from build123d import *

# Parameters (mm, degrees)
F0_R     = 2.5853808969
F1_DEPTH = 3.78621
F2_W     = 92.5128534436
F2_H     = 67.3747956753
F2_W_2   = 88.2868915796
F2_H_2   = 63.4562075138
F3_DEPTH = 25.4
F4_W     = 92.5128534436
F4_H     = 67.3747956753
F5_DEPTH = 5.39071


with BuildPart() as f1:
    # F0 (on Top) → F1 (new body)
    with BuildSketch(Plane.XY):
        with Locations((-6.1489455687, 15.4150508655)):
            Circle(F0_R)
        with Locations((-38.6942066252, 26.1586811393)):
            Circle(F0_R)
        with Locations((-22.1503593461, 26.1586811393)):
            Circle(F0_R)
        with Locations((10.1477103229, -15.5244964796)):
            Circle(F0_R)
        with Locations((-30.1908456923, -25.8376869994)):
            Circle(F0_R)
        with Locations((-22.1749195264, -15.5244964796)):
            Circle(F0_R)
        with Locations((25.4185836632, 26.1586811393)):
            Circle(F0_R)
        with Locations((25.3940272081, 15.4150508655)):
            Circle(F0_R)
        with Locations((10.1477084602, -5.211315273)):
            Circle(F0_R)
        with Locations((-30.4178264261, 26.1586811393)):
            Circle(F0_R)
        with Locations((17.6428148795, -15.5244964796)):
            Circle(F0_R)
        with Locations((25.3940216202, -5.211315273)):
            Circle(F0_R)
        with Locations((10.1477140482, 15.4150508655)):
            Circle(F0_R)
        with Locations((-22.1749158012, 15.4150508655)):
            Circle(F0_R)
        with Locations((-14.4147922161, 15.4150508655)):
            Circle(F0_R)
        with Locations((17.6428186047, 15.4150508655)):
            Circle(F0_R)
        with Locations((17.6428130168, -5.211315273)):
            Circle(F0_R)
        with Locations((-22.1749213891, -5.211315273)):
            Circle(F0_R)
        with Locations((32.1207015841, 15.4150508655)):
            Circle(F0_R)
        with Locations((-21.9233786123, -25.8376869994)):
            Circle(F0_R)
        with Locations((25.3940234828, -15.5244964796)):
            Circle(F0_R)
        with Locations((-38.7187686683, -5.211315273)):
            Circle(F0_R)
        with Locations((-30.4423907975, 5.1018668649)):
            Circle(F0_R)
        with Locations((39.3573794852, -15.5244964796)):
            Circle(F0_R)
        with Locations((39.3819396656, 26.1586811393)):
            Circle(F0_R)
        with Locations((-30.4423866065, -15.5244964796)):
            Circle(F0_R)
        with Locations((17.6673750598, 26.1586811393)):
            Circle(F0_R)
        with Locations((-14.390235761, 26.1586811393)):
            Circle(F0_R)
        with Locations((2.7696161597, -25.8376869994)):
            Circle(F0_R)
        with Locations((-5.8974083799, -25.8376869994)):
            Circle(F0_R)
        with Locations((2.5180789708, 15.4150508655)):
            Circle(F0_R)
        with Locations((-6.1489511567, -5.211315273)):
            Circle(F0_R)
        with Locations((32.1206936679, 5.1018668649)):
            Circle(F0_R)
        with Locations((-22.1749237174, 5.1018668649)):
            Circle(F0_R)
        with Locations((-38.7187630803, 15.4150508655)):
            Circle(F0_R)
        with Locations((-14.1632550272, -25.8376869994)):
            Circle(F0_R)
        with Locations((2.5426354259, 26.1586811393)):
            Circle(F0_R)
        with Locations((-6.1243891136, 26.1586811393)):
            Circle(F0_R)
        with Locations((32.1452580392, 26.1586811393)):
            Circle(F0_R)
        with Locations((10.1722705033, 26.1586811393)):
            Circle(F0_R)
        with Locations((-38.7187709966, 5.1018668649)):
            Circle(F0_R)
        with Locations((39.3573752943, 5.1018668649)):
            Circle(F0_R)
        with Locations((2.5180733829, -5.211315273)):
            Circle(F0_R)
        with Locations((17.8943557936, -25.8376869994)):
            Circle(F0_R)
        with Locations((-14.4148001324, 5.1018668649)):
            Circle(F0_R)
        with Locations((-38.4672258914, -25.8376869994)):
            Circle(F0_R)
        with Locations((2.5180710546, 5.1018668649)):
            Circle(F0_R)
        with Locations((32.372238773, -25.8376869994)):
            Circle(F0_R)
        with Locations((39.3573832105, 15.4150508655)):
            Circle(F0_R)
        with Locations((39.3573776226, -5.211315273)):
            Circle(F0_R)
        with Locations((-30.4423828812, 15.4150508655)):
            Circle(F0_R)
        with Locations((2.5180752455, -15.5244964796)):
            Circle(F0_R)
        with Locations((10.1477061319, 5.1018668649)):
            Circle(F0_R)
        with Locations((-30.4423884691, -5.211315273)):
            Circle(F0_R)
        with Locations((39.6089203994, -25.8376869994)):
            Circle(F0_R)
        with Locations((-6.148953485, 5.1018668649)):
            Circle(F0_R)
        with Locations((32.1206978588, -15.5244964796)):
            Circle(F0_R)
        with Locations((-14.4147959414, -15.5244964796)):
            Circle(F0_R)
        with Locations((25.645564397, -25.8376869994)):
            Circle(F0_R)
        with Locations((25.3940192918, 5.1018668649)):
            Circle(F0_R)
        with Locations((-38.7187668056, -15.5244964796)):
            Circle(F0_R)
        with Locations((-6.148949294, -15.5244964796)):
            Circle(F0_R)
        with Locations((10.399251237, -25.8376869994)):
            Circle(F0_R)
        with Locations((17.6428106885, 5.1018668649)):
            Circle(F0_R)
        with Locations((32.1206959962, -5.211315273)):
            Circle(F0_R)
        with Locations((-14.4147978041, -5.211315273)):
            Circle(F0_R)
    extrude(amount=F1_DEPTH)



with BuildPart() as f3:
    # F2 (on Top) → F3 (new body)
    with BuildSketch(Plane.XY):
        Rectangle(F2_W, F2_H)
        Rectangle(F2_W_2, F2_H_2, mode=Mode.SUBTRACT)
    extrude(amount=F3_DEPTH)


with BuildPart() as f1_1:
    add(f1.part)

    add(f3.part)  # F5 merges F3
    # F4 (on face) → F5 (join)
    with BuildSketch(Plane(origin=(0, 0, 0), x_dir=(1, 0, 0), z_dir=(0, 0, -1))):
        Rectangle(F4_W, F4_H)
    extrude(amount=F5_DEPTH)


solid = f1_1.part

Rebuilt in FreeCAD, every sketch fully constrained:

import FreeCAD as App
import Part
import Sketcher
from FreeCAD import Vector
Q = App.Units.Quantity

doc = App.newDocument("Part")
body = doc.addObject("PartDesign::Body", "Body")
body.AllowCompound = True

# Sketch on XY plane
sketch1 = body.newObject("Sketcher::SketchObject", "Sketch")
sketch1.AttachmentSupport = (doc.getObject("XY_Plane"), [""])
sketch1.MapMode = "FlatFace"
sketch1.addGeometry(Part.Circle(Vector(-6.1, 15.4, 0), Vector(0, 0, 1), 2.6), False)
sketch1.addGeometry(Part.Circle(Vector(-38.7, 26.2, 0), Vector(0, 0, 1), 2.6), False)
sketch1.addGeometry(Part.Circle(Vector(-22.2, 26.2, 0), Vector(0, 0, 1), 2.6), False)
sketch1.addGeometry(Part.Circle(Vector(10.1, -15.5, 0), Vector(0, 0, 1), 2.6), False)
sketch1.addGeometry(Part.Circle(Vector(-30.2, -25.8, 0), Vector(0, 0, 1), 2.6), False)
sketch1.addGeometry(Part.Circle(Vector(-22.2, -15.5, 0), Vector(0, 0, 1), 2.6), False)
sketch1.addGeometry(Part.Circle(Vector(25.4, 26.2, 0), Vector(0, 0, 1), 2.6), False)
sketch1.addGeometry(Part.Circle(Vector(25.4, 15.4, 0), Vector(0, 0, 1), 2.6), False)
sketch1.addGeometry(Part.Circle(Vector(10.1, -5.2, 0), Vector(0, 0, 1), 2.6), False)
sketch1.addGeometry(Part.Circle(Vector(-30.4, 26.2, 0), Vector(0, 0, 1), 2.6), False)
sketch1.addGeometry(Part.Circle(Vector(17.6, -15.5, 0), Vector(0, 0, 1), 2.6), False)
sketch1.addGeometry(Part.Circle(Vector(25.4, -5.2, 0), Vector(0, 0, 1), 2.6), False)
sketch1.addGeometry(Part.Circle(Vector(10.1, 15.4, 0), Vector(0, 0, 1), 2.6), False)
sketch1.addGeometry(Part.Circle(Vector(-22.2, 15.4, 0), Vector(0, 0, 1), 2.6), False)
sketch1.addGeometry(Part.Circle(Vector(-14.4, 15.4, 0), Vector(0, 0, 1), 2.6), False)
sketch1.addGeometry(Part.Circle(Vector(17.6, 15.4, 0), Vector(0, 0, 1), 2.6), False)
sketch1.addGeometry(Part.Circle(Vector(17.6, -5.2, 0), Vector(0, 0, 1), 2.6), False)
sketch1.addGeometry(Part.Circle(Vector(-22.2, -5.2, 0), Vector(0, 0, 1), 2.6), False)
sketch1.addGeometry(Part.Circle(Vector(32.1, 15.4, 0), Vector(0, 0, 1), 2.6), False)
sketch1.addGeometry(Part.Circle(Vector(-21.9, -25.8, 0), Vector(0, 0, 1), 2.6), False)
sketch1.addGeometry(Part.Circle(Vector(25.4, -15.5, 0), Vector(0, 0, 1), 2.6), False)
sketch1.addGeometry(Part.Circle(Vector(-38.7, -5.2, 0), Vector(0, 0, 1), 2.6), False)
sketch1.addGeometry(Part.Circle(Vector(-30.4, 5.1, 0), Vector(0, 0, 1), 2.6), False)
sketch1.addGeometry(Part.Circle(Vector(39.4, -15.5, 0), Vector(0, 0, 1), 2.6), False)
sketch1.addGeometry(Part.Circle(Vector(39.4, 26.2, 0), Vector(0, 0, 1), 2.6), False)
sketch1.addGeometry(Part.Circle(Vector(-30.4, -15.5, 0), Vector(0, 0, 1), 2.6), False)
sketch1.addGeometry(Part.Circle(Vector(17.7, 26.2, 0), Vector(0, 0, 1), 2.6), False)
sketch1.addGeometry(Part.Circle(Vector(-14.4, 26.2, 0), Vector(0, 0, 1), 2.6), False)
sketch1.addGeometry(Part.Circle(Vector(2.8, -25.8, 0), Vector(0, 0, 1), 2.6), False)
sketch1.addGeometry(Part.Circle(Vector(-5.9, -25.8, 0), Vector(0, 0, 1), 2.6), False)
sketch1.addGeometry(Part.Circle(Vector(2.5, 15.4, 0), Vector(0, 0, 1), 2.6), False)
sketch1.addGeometry(Part.Circle(Vector(-6.1, -5.2, 0), Vector(0, 0, 1), 2.6), False)
sketch1.addGeometry(Part.Circle(Vector(32.1, 5.1, 0), Vector(0, 0, 1), 2.6), False)
sketch1.addGeometry(Part.Circle(Vector(-22.2, 5.1, 0), Vector(0, 0, 1), 2.6), False)
sketch1.addGeometry(Part.Circle(Vector(-38.7, 15.4, 0), Vector(0, 0, 1), 2.6), False)
sketch1.addGeometry(Part.Circle(Vector(-14.2, -25.8, 0), Vector(0, 0, 1), 2.6), False)
sketch1.addGeometry(Part.Circle(Vector(2.5, 26.2, 0), Vector(0, 0, 1), 2.6), False)
sketch1.addGeometry(Part.Circle(Vector(-6.1, 26.2, 0), Vector(0, 0, 1), 2.6), False)
sketch1.addGeometry(Part.Circle(Vector(32.1, 26.2, 0), Vector(0, 0, 1), 2.6), False)
sketch1.addGeometry(Part.Circle(Vector(10.2, 26.2, 0), Vector(0, 0, 1), 2.6), False)
sketch1.addGeometry(Part.Circle(Vector(-38.7, 5.1, 0), Vector(0, 0, 1), 2.6), False)
sketch1.addGeometry(Part.Circle(Vector(39.4, 5.1, 0), Vector(0, 0, 1), 2.6), False)
sketch1.addGeometry(Part.Circle(Vector(2.5, -5.2, 0), Vector(0, 0, 1), 2.6), False)
sketch1.addGeometry(Part.Circle(Vector(17.9, -25.8, 0), Vector(0, 0, 1), 2.6), False)
sketch1.addGeometry(Part.Circle(Vector(-14.4, 5.1, 0), Vector(0, 0, 1), 2.6), False)
sketch1.addGeometry(Part.Circle(Vector(-38.5, -25.8, 0), Vector(0, 0, 1), 2.6), False)
sketch1.addGeometry(Part.Circle(Vector(2.5, 5.1, 0), Vector(0, 0, 1), 2.6), False)
sketch1.addGeometry(Part.Circle(Vector(32.4, -25.8, 0), Vector(0, 0, 1), 2.6), False)
sketch1.addGeometry(Part.Circle(Vector(39.4, 15.4, 0), Vector(0, 0, 1), 2.6), False)
sketch1.addGeometry(Part.Circle(Vector(39.4, -5.2, 0), Vector(0, 0, 1), 2.6), False)
sketch1.addGeometry(Part.Circle(Vector(-30.4, 15.4, 0), Vector(0, 0, 1), 2.6), False)
sketch1.addGeometry(Part.Circle(Vector(2.5, -15.5, 0), Vector(0, 0, 1), 2.6), False)
sketch1.addGeometry(Part.Circle(Vector(10.1, 5.1, 0), Vector(0, 0, 1), 2.6), False)
sketch1.addGeometry(Part.Circle(Vector(-30.4, -5.2, 0), Vector(0, 0, 1), 2.6), False)
sketch1.addGeometry(Part.Circle(Vector(39.6, -25.8, 0), Vector(0, 0, 1), 2.6), False)
sketch1.addGeometry(Part.Circle(Vector(-6.1, 5.1, 0), Vector(0, 0, 1), 2.6), False)
sketch1.addGeometry(Part.Circle(Vector(32.1, -15.5, 0), Vector(0, 0, 1), 2.6), False)
sketch1.addGeometry(Part.Circle(Vector(-14.4, -15.5, 0), Vector(0, 0, 1), 2.6), False)
sketch1.addGeometry(Part.Circle(Vector(25.6, -25.8, 0), Vector(0, 0, 1), 2.6), False)
sketch1.addGeometry(Part.Circle(Vector(25.4, 5.1, 0), Vector(0, 0, 1), 2.6), False)
sketch1.addGeometry(Part.Circle(Vector(-38.7, -15.5, 0), Vector(0, 0, 1), 2.6), False)
sketch1.addGeometry(Part.Circle(Vector(-6.1, -15.5, 0), Vector(0, 0, 1), 2.6), False)
sketch1.addGeometry(Part.Circle(Vector(10.4, -25.8, 0), Vector(0, 0, 1), 2.6), False)
sketch1.addGeometry(Part.Circle(Vector(17.6, 5.1, 0), Vector(0, 0, 1), 2.6), False)
sketch1.addGeometry(Part.Circle(Vector(32.1, -5.2, 0), Vector(0, 0, 1), 2.6), False)
sketch1.addGeometry(Part.Circle(Vector(-14.4, -5.2, 0), Vector(0, 0, 1), 2.6), False)
sketch1.addConstraint(Sketcher.Constraint("Equal", 0, 1))
sketch1.addConstraint(Sketcher.Constraint("Equal", 1, 2))
sketch1.addConstraint(Sketcher.Constraint("Equal", 2, 3))
sketch1.addConstraint(Sketcher.Constraint("Equal", 3, 4))
sketch1.addConstraint(Sketcher.Constraint("Equal", 4, 5))
sketch1.addConstraint(Sketcher.Constraint("Equal", 5, 6))
sketch1.addConstraint(Sketcher.Constraint("Equal", 6, 7))
sketch1.addConstraint(Sketcher.Constraint("Equal", 7, 8))
sketch1.addConstraint(Sketcher.Constraint("Equal", 8, 9))
sketch1.addConstraint(Sketcher.Constraint("Equal", 9, 10))
sketch1.addConstraint(Sketcher.Constraint("Equal", 10, 11))
sketch1.addConstraint(Sketcher.Constraint("Equal", 11, 12))
sketch1.addConstraint(Sketcher.Constraint("Equal", 12, 13))
sketch1.addConstraint(Sketcher.Constraint("Equal", 13, 14))
sketch1.addConstraint(Sketcher.Constraint("Equal", 14, 15))
sketch1.addConstraint(Sketcher.Constraint("Equal", 15, 16))
sketch1.addConstraint(Sketcher.Constraint("Equal", 16, 17))
sketch1.addConstraint(Sketcher.Constraint("Equal", 17, 18))
sketch1.addConstraint(Sketcher.Constraint("Equal", 18, 19))
sketch1.addConstraint(Sketcher.Constraint("Equal", 19, 20))
sketch1.addConstraint(Sketcher.Constraint("Equal", 20, 21))
sketch1.addConstraint(Sketcher.Constraint("Equal", 21, 22))
sketch1.addConstraint(Sketcher.Constraint("Equal", 22, 23))
sketch1.addConstraint(Sketcher.Constraint("Equal", 23, 24))
sketch1.addConstraint(Sketcher.Constraint("Equal", 24, 25))
sketch1.addConstraint(Sketcher.Constraint("Equal", 25, 26))
sketch1.addConstraint(Sketcher.Constraint("Equal", 26, 27))
sketch1.addConstraint(Sketcher.Constraint("Equal", 27, 28))
sketch1.addConstraint(Sketcher.Constraint("Equal", 28, 29))
sketch1.addConstraint(Sketcher.Constraint("Equal", 29, 30))
sketch1.addConstraint(Sketcher.Constraint("Equal", 30, 31))
sketch1.addConstraint(Sketcher.Constraint("Equal", 31, 32))
sketch1.addConstraint(Sketcher.Constraint("Equal", 32, 33))
sketch1.addConstraint(Sketcher.Constraint("Equal", 33, 34))
sketch1.addConstraint(Sketcher.Constraint("Equal", 34, 35))
sketch1.addConstraint(Sketcher.Constraint("Equal", 35, 36))
sketch1.addConstraint(Sketcher.Constraint("Equal", 36, 37))
sketch1.addConstraint(Sketcher.Constraint("Equal", 37, 38))
sketch1.addConstraint(Sketcher.Constraint("Equal", 38, 39))
sketch1.addConstraint(Sketcher.Constraint("Equal", 39, 40))
sketch1.addConstraint(Sketcher.Constraint("Equal", 40, 41))
sketch1.addConstraint(Sketcher.Constraint("Equal", 41, 42))
sketch1.addConstraint(Sketcher.Constraint("Equal", 42, 43))
sketch1.addConstraint(Sketcher.Constraint("Equal", 43, 44))
sketch1.addConstraint(Sketcher.Constraint("Equal", 44, 45))
sketch1.addConstraint(Sketcher.Constraint("Equal", 45, 46))
sketch1.addConstraint(Sketcher.Constraint("Equal", 46, 47))
sketch1.addConstraint(Sketcher.Constraint("Equal", 47, 48))
sketch1.addConstraint(Sketcher.Constraint("Equal", 48, 49))
sketch1.addConstraint(Sketcher.Constraint("Equal", 49, 50))
sketch1.addConstraint(Sketcher.Constraint("Equal", 50, 51))
sketch1.addConstraint(Sketcher.Constraint("Equal", 51, 52))
sketch1.addConstraint(Sketcher.Constraint("Equal", 52, 53))
sketch1.addConstraint(Sketcher.Constraint("Equal", 53, 54))
sketch1.addConstraint(Sketcher.Constraint("Equal", 54, 55))
sketch1.addConstraint(Sketcher.Constraint("Equal", 55, 56))
sketch1.addConstraint(Sketcher.Constraint("Equal", 56, 57))
sketch1.addConstraint(Sketcher.Constraint("Equal", 57, 58))
sketch1.addConstraint(Sketcher.Constraint("Equal", 58, 59))
sketch1.addConstraint(Sketcher.Constraint("Equal", 59, 60))
sketch1.addConstraint(Sketcher.Constraint("Equal", 60, 61))
sketch1.addConstraint(Sketcher.Constraint("Equal", 61, 62))
sketch1.addConstraint(Sketcher.Constraint("Equal", 62, 63))
sketch1.addConstraint(Sketcher.Constraint("Equal", 63, 64))
sketch1.addConstraint(Sketcher.Constraint("Equal", 64, 65))
sketch1.addConstraint(Sketcher.Constraint("Horizontal", 1, 3, 2, 3))
sketch1.addConstraint(Sketcher.Constraint("Horizontal", 3, 3, 5, 3))
sketch1.addConstraint(Sketcher.Constraint("Horizontal", 2, 3, 6, 3))
sketch1.addConstraint(Sketcher.Constraint("Horizontal", 0, 3, 7, 3))
sketch1.addConstraint(Sketcher.Constraint("Horizontal", 6, 3, 9, 3))
sketch1.addConstraint(Sketcher.Constraint("Horizontal", 5, 3, 10, 3))
sketch1.addConstraint(Sketcher.Constraint("Horizontal", 8, 3, 11, 3))
sketch1.addConstraint(Sketcher.Constraint("Horizontal", 7, 3, 12, 3))
sketch1.addConstraint(Sketcher.Constraint("Horizontal", 12, 3, 13, 3))
sketch1.addConstraint(Sketcher.Constraint("Horizontal", 13, 3, 14, 3))
sketch1.addConstraint(Sketcher.Constraint("Horizontal", 14, 3, 15, 3))
sketch1.addConstraint(Sketcher.Constraint("Horizontal", 11, 3, 16, 3))
sketch1.addConstraint(Sketcher.Constraint("Horizontal", 16, 3, 17, 3))
sketch1.addConstraint(Sketcher.Constraint("Horizontal", 15, 3, 18, 3))
sketch1.addConstraint(Sketcher.Constraint("Horizontal", 4, 3, 19, 3))
sketch1.addConstraint(Sketcher.Constraint("Horizontal", 10, 3, 20, 3))
sketch1.addConstraint(Sketcher.Constraint("Horizontal", 17, 3, 21, 3))
sketch1.addConstraint(Sketcher.Constraint("Horizontal", 20, 3, 23, 3))
sketch1.addConstraint(Sketcher.Constraint("Horizontal", 9, 3, 24, 3))
sketch1.addConstraint(Sketcher.Constraint("Horizontal", 23, 3, 25, 3))
sketch1.addConstraint(Sketcher.Constraint("Horizontal", 24, 3, 26, 3))
sketch1.addConstraint(Sketcher.Constraint("Horizontal", 26, 3, 27, 3))
sketch1.addConstraint(Sketcher.Constraint("Horizontal", 19, 3, 28, 3))
sketch1.addConstraint(Sketcher.Constraint("Horizontal", 28, 3, 29, 3))
sketch1.addConstraint(Sketcher.Constraint("Horizontal", 18, 3, 30, 3))
sketch1.addConstraint(Sketcher.Constraint("Horizontal", 21, 3, 31, 3))
sketch1.addConstraint(Sketcher.Constraint("Horizontal", 22, 3, 32, 3))
sketch1.addConstraint(Sketcher.Constraint("Horizontal", 32, 3, 33, 3))
sketch1.addConstraint(Sketcher.Constraint("Horizontal", 30, 3, 34, 3))
sketch1.addConstraint(Sketcher.Constraint("Horizontal", 29, 3, 35, 3))
sketch1.addConstraint(Sketcher.Constraint("Horizontal", 27, 3, 36, 3))
sketch1.addConstraint(Sketcher.Constraint("Horizontal", 36, 3, 37, 3))
sketch1.addConstraint(Sketcher.Constraint("Horizontal", 37, 3, 38, 3))
sketch1.addConstraint(Sketcher.Constraint("Horizontal", 38, 3, 39, 3))
sketch1.addConstraint(Sketcher.Constraint("Horizontal", 33, 3, 40, 3))
sketch1.addConstraint(Sketcher.Constraint("Horizontal", 40, 3, 41, 3))
sketch1.addConstraint(Sketcher.Constraint("Horizontal", 31, 3, 42, 3))
sketch1.addConstraint(Sketcher.Constraint("Horizontal", 35, 3, 43, 3))
sketch1.addConstraint(Sketcher.Constraint("Horizontal", 41, 3, 44, 3))
sketch1.addConstraint(Sketcher.Constraint("Horizontal", 43, 3, 45, 3))
sketch1.addConstraint(Sketcher.Constraint("Horizontal", 44, 3, 46, 3))
sketch1.addConstraint(Sketcher.Constraint("Horizontal", 45, 3, 47, 3))
sketch1.addConstraint(Sketcher.Constraint("Horizontal", 34, 3, 48, 3))
sketch1.addConstraint(Sketcher.Constraint("Horizontal", 42, 3, 49, 3))
sketch1.addConstraint(Sketcher.Constraint("Horizontal", 48, 3, 50, 3))
sketch1.addConstraint(Sketcher.Constraint("Horizontal", 25, 3, 51, 3))
sketch1.addConstraint(Sketcher.Constraint("Horizontal", 46, 3, 52, 3))
sketch1.addConstraint(Sketcher.Constraint("Horizontal", 49, 3, 53, 3))
sketch1.addConstraint(Sketcher.Constraint("Horizontal", 47, 3, 54, 3))
sketch1.addConstraint(Sketcher.Constraint("Horizontal", 52, 3, 55, 3))
sketch1.addConstraint(Sketcher.Constraint("Horizontal", 51, 3, 56, 3))
sketch1.addConstraint(Sketcher.Constraint("Horizontal", 56, 3, 57, 3))
sketch1.addConstraint(Sketcher.Constraint("Horizontal", 54, 3, 58, 3))
sketch1.addConstraint(Sketcher.Constraint("Horizontal", 55, 3, 59, 3))
sketch1.addConstraint(Sketcher.Constraint("Horizontal", 57, 3, 60, 3))
sketch1.addConstraint(Sketcher.Constraint("Horizontal", 60, 3, 61, 3))
sketch1.addConstraint(Sketcher.Constraint("Horizontal", 58, 3, 62, 3))
sketch1.addConstraint(Sketcher.Constraint("Horizontal", 59, 3, 63, 3))
sketch1.addConstraint(Sketcher.Constraint("Horizontal", 53, 3, 64, 3))
sketch1.addConstraint(Sketcher.Constraint("Horizontal", 64, 3, 65, 3))
sketch1.addConstraint(Sketcher.Constraint("Vertical", 3, 3, 8, 3))
sketch1.addConstraint(Sketcher.Constraint("Vertical", 10, 3, 16, 3))
sketch1.addConstraint(Sketcher.Constraint("Vertical", 5, 3, 17, 3))
sketch1.addConstraint(Sketcher.Constraint("Vertical", 11, 3, 20, 3))
sketch1.addConstraint(Sketcher.Constraint("Vertical", 23, 3, 49, 3))
sketch1.addConstraint(Sketcher.Constraint("Vertical", 42, 3, 51, 3))
sketch1.addConstraint(Sketcher.Constraint("Vertical", 25, 3, 53, 3))
sketch1.addConstraint(Sketcher.Constraint("Vertical", 21, 3, 60, 3))
sketch1.addConstraint(Sketcher.Constraint("Vertical", 31, 3, 61, 3))
sketch1.addConstraint(Sketcher.Constraint("Vertical", 56, 3, 64, 3))
sketch1.addConstraint(Sketcher.Constraint("Vertical", 57, 3, 65, 3))
sketch1.addConstraint(Sketcher.Constraint("Diameter", 0, 5.170762))
sketch1.addConstraint(Sketcher.Constraint("DistanceX", -1, 1, 18, 3, 32.120702))
sketch1.addConstraint(Sketcher.Constraint("DistanceX", 44, 3, -1, 1, 14.4148))
sketch1.addConstraint(Sketcher.Constraint("DistanceY", -1, 1, 0, 3, 15.415051))
sketch1.addConstraint(Sketcher.Constraint("DistanceY", -1, 1, 1, 3, 26.158681))
sketch1.addConstraint(Sketcher.Constraint("DistanceX", 2, 3, -1, 1, 22.150359))
sketch1.addConstraint(Sketcher.Constraint("DistanceX", -1, 1, 3, 3, 10.14771))
sketch1.addConstraint(Sketcher.Constraint("DistanceX", 5, 3, -1, 1, 22.17492))
sketch1.addConstraint(Sketcher.Constraint("DistanceX", -1, 1, 11, 3, 25.394022))
sketch1.addConstraint(Sketcher.Constraint("DistanceX", -1, 1, 15, 3, 17.642819))
sketch1.addConstraint(Sketcher.Constraint("DistanceX", 19, 3, -1, 1, 21.923379))
sketch1.addConstraint(Sketcher.Constraint("DistanceX", 21, 3, -1, 1, 38.718769))
sketch1.addConstraint(Sketcher.Constraint("DistanceX", 22, 3, -1, 1, 30.442391))
sketch1.addConstraint(Sketcher.Constraint("DistanceX", -1, 1, 23, 3, 39.357379))
sketch1.addConstraint(Sketcher.Constraint("DistanceX", -1, 1, 24, 3, 39.38194))
sketch1.addConstraint(Sketcher.Constraint("DistanceX", 29, 3, -1, 1, 5.897408))
sketch1.addConstraint(Sketcher.Constraint("DistanceX", -1, 1, 30, 3, 2.518079))
sketch1.addConstraint(Sketcher.Constraint("DistanceX", 31, 3, -1, 1, 6.148951))
sketch1.addConstraint(Sketcher.Constraint("DistanceX", 37, 3, -1, 1, 6.124389))
sketch1.addConstraint(Sketcher.Constraint("DistanceX", -1, 1, 38, 3, 32.145258))
sketch1.addConstraint(Sketcher.Constraint("DistanceX", -1, 1, 39, 3, 10.172271))
sketch1.addConstraint(Sketcher.Constraint("DistanceX", 40, 3, -1, 1, 38.718771))
sketch1.addConstraint(Sketcher.Constraint("DistanceX", -1, 1, 46, 3, 2.518071))
sketch1.addConstraint(Sketcher.Constraint("DistanceX", -1, 1, 47, 3, 32.372239))
sketch1.addConstraint(Sketcher.Constraint("DistanceX", 53, 3, -1, 1, 30.442388))
sketch1.addConstraint(Sketcher.Constraint("DistanceX", -1, 1, 54, 3, 39.60892))
sketch1.addConstraint(Sketcher.Constraint("DistanceX", -1, 1, 59, 3, 25.394019))
sketch1.addConstraint(Sketcher.Constraint("DistanceX", -1, 1, 62, 3, 10.399251))
sketch1.addConstraint(Sketcher.Constraint("DistanceX", -1, 1, 63, 3, 17.642811))
sketch1.addConstraint(Sketcher.Constraint("DistanceX", 0, 3, -1, 1, 6.148946))
sketch1.addConstraint(Sketcher.Constraint("DistanceX", 1, 3, -1, 1, 38.694207))
sketch1.addConstraint(Sketcher.Constraint("DistanceY", 3, 3, -1, 1, 15.524496))
sketch1.addConstraint(Sketcher.Constraint("DistanceX", 4, 3, -1, 1, 30.190846))
sketch1.addConstraint(Sketcher.Constraint("DistanceY", 4, 3, -1, 1, 25.837687))
sketch1.addConstraint(Sketcher.Constraint("DistanceX", -1, 1, 6, 3, 25.418584))
sketch1.addConstraint(Sketcher.Constraint("DistanceX", -1, 1, 7, 3, 25.394027))
sketch1.addConstraint(Sketcher.Constraint("DistanceY", 8, 3, -1, 1, 5.211315))
sketch1.addConstraint(Sketcher.Constraint("DistanceX", 9, 3, -1, 1, 30.417826))
sketch1.addConstraint(Sketcher.Constraint("DistanceX", -1, 1, 10, 3, 17.642815))
sketch1.addConstraint(Sketcher.Constraint("DistanceX", -1, 1, 12, 3, 10.147714))
sketch1.addConstraint(Sketcher.Constraint("DistanceX", 13, 3, -1, 1, 22.174916))
sketch1.addConstraint(Sketcher.Constraint("DistanceX", 14, 3, -1, 1, 14.414792))
sketch1.addConstraint(Sketcher.Constraint("DistanceY", -1, 1, 22, 3, 5.101867))
sketch1.addConstraint(Sketcher.Constraint("DistanceX", -1, 1, 26, 3, 17.667375))
sketch1.addConstraint(Sketcher.Constraint("DistanceX", 27, 3, -1, 1, 14.390236))
sketch1.addConstraint(Sketcher.Constraint("DistanceX", -1, 1, 28, 3, 2.769616))
sketch1.addConstraint(Sketcher.Constraint("DistanceX", -1, 1, 32, 3, 32.120694))
sketch1.addConstraint(Sketcher.Constraint("DistanceX", 33, 3, -1, 1, 22.174924))
sketch1.addConstraint(Sketcher.Constraint("DistanceX", 34, 3, -1, 1, 38.718763))
sketch1.addConstraint(Sketcher.Constraint("DistanceX", 35, 3, -1, 1, 14.163255))
sketch1.addConstraint(Sketcher.Constraint("DistanceX", -1, 1, 36, 3, 2.542635))
sketch1.addConstraint(Sketcher.Constraint("DistanceX", -1, 1, 41, 3, 39.357375))
sketch1.addConstraint(Sketcher.Constraint("DistanceX", -1, 1, 42, 3, 2.518073))
sketch1.addConstraint(Sketcher.Constraint("DistanceX", -1, 1, 43, 3, 17.894356))
sketch1.addConstraint(Sketcher.Constraint("DistanceX", 45, 3, -1, 1, 38.467226))
sketch1.addConstraint(Sketcher.Constraint("DistanceX", -1, 1, 48, 3, 39.357383))
sketch1.addConstraint(Sketcher.Constraint("DistanceX", 50, 3, -1, 1, 30.442383))
sketch1.addConstraint(Sketcher.Constraint("DistanceX", -1, 1, 52, 3, 10.147706))
sketch1.addConstraint(Sketcher.Constraint("DistanceX", 55, 3, -1, 1, 6.148953))
sketch1.addConstraint(Sketcher.Constraint("DistanceX", -1, 1, 56, 3, 32.120698))
sketch1.addConstraint(Sketcher.Constraint("DistanceX", 57, 3, -1, 1, 14.414796))
sketch1.addConstraint(Sketcher.Constraint("DistanceX", -1, 1, 58, 3, 25.645564))
pad1 = body.newObject("PartDesign::Pad", "Pad")
pad1.Profile = sketch1
pad1.Length = 3.78621
body2 = doc.addObject("PartDesign::Body", "Body001")

# Sketch on XY plane
sketch2 = body2.newObject("Sketcher::SketchObject", "Sketch001")
sketch2.AttachmentSupport = (doc.getObject("XY_Plane001"), [""])
sketch2.MapMode = "FlatFace"
sketch2.addGeometry(Part.LineSegment(Vector(-46, 34, 0), Vector(-46, -34, 0)), False)
sketch2.addGeometry(Part.LineSegment(Vector(-46, -34, 0), Vector(46, -34, 0)), False)
sketch2.addGeometry(Part.LineSegment(Vector(46, -34, 0), Vector(46, 34, 0)), False)
sketch2.addGeometry(Part.LineSegment(Vector(46, 34, 0), Vector(-46, 34, 0)), False)
sketch2.addGeometry(Part.LineSegment(Vector(44, -32, 0), Vector(-44, -32, 0)), False)
sketch2.addGeometry(Part.LineSegment(Vector(-44, -32, 0), Vector(-44, 32, 0)), False)
sketch2.addGeometry(Part.LineSegment(Vector(-44, 32, 0), Vector(44, 32, 0)), False)
sketch2.addGeometry(Part.LineSegment(Vector(44, 32, 0), Vector(44, -32, 0)), False)
sketch2.addConstraint(Sketcher.Constraint("Coincident", 0, 2, 1, 1))
sketch2.addConstraint(Sketcher.Constraint("Coincident", 1, 2, 2, 1))
sketch2.addConstraint(Sketcher.Constraint("Coincident", 2, 2, 3, 1))
sketch2.addConstraint(Sketcher.Constraint("Coincident", 3, 2, 0, 1))
sketch2.addConstraint(Sketcher.Constraint("Coincident", 4, 2, 5, 1))
sketch2.addConstraint(Sketcher.Constraint("Coincident", 5, 2, 6, 1))
sketch2.addConstraint(Sketcher.Constraint("Coincident", 6, 2, 7, 1))
sketch2.addConstraint(Sketcher.Constraint("Coincident", 7, 2, 4, 1))
sketch2.addConstraint(Sketcher.Constraint("Vertical", 0))
sketch2.addConstraint(Sketcher.Constraint("Horizontal", 1))
sketch2.addConstraint(Sketcher.Constraint("Vertical", 2))
sketch2.addConstraint(Sketcher.Constraint("Horizontal", 3))
sketch2.addConstraint(Sketcher.Constraint("Horizontal", 4))
sketch2.addConstraint(Sketcher.Constraint("Vertical", 5))
sketch2.addConstraint(Sketcher.Constraint("Horizontal", 6))
sketch2.addConstraint(Sketcher.Constraint("Vertical", 7))
sketch2.addConstraint(Sketcher.Constraint("Symmetric", 0, 2, 2, 2, -1, 1))
sketch2.addConstraint(Sketcher.Constraint("Symmetric", 4, 2, 6, 2, -1, 1))
sketch2.addConstraint(Sketcher.Constraint("DistanceX", 4, 2, 4, 1, 88.286892))
sketch2.addConstraint(Sketcher.Constraint("DistanceY", 4, 2, 3, 2, 65.415502))
sketch2.addConstraint(Sketcher.Constraint("DistanceX", 1, 1, 1, 2, 92.512853))
sketch2.addConstraint(Sketcher.Constraint("DistanceY", 0, 2, 0, 1, 67.374796))
pad2 = body2.newObject("PartDesign::Pad", "Pad001")
pad2.Profile = sketch2
pad2.Length = Q("1 in")
body.AllowCompound = True
doc.recompute()

boolean = body.newObject("PartDesign::Boolean", "Boolean")
boolean.Type = "Fuse"
boolean.addObjects([body2])

# Sketch on XY plane
sketch3 = body.newObject("Sketcher::SketchObject", "Sketch002")
sketch3.AttachmentSupport = (doc.getObject("XY_Plane"), [""])
sketch3.MapMode = "FlatFace"
sketch3.addGeometry(Part.LineSegment(Vector(-46, -34, 0), Vector(-46, 34, 0)), False)
sketch3.addGeometry(Part.LineSegment(Vector(-46, 34, 0), Vector(46, 34, 0)), False)
sketch3.addGeometry(Part.LineSegment(Vector(46, 34, 0), Vector(46, -34, 0)), False)
sketch3.addGeometry(Part.LineSegment(Vector(46, -34, 0), Vector(-46, -34, 0)), False)
sketch3.addConstraint(Sketcher.Constraint("Coincident", 0, 2, 1, 1))
sketch3.addConstraint(Sketcher.Constraint("Coincident", 1, 2, 2, 1))
sketch3.addConstraint(Sketcher.Constraint("Coincident", 2, 2, 3, 1))
sketch3.addConstraint(Sketcher.Constraint("Coincident", 3, 2, 0, 1))
sketch3.addConstraint(Sketcher.Constraint("Vertical", 0))
sketch3.addConstraint(Sketcher.Constraint("Horizontal", 1))
sketch3.addConstraint(Sketcher.Constraint("Vertical", 2))
sketch3.addConstraint(Sketcher.Constraint("Horizontal", 3))
sketch3.addConstraint(Sketcher.Constraint("Symmetric", 0, 2, 2, 2, -1, 1))
sketch3.addConstraint(Sketcher.Constraint("DistanceX", 1, 1, 1, 2, 92.512853))
sketch3.addConstraint(Sketcher.Constraint("DistanceY", 0, 1, 0, 2, 67.374796))
pad3 = body.newObject("PartDesign::Pad", "Pad002")
pad3.Profile = sketch3
pad3.Length = 5.39071
pad3.Reversed = True

doc.recompute()
